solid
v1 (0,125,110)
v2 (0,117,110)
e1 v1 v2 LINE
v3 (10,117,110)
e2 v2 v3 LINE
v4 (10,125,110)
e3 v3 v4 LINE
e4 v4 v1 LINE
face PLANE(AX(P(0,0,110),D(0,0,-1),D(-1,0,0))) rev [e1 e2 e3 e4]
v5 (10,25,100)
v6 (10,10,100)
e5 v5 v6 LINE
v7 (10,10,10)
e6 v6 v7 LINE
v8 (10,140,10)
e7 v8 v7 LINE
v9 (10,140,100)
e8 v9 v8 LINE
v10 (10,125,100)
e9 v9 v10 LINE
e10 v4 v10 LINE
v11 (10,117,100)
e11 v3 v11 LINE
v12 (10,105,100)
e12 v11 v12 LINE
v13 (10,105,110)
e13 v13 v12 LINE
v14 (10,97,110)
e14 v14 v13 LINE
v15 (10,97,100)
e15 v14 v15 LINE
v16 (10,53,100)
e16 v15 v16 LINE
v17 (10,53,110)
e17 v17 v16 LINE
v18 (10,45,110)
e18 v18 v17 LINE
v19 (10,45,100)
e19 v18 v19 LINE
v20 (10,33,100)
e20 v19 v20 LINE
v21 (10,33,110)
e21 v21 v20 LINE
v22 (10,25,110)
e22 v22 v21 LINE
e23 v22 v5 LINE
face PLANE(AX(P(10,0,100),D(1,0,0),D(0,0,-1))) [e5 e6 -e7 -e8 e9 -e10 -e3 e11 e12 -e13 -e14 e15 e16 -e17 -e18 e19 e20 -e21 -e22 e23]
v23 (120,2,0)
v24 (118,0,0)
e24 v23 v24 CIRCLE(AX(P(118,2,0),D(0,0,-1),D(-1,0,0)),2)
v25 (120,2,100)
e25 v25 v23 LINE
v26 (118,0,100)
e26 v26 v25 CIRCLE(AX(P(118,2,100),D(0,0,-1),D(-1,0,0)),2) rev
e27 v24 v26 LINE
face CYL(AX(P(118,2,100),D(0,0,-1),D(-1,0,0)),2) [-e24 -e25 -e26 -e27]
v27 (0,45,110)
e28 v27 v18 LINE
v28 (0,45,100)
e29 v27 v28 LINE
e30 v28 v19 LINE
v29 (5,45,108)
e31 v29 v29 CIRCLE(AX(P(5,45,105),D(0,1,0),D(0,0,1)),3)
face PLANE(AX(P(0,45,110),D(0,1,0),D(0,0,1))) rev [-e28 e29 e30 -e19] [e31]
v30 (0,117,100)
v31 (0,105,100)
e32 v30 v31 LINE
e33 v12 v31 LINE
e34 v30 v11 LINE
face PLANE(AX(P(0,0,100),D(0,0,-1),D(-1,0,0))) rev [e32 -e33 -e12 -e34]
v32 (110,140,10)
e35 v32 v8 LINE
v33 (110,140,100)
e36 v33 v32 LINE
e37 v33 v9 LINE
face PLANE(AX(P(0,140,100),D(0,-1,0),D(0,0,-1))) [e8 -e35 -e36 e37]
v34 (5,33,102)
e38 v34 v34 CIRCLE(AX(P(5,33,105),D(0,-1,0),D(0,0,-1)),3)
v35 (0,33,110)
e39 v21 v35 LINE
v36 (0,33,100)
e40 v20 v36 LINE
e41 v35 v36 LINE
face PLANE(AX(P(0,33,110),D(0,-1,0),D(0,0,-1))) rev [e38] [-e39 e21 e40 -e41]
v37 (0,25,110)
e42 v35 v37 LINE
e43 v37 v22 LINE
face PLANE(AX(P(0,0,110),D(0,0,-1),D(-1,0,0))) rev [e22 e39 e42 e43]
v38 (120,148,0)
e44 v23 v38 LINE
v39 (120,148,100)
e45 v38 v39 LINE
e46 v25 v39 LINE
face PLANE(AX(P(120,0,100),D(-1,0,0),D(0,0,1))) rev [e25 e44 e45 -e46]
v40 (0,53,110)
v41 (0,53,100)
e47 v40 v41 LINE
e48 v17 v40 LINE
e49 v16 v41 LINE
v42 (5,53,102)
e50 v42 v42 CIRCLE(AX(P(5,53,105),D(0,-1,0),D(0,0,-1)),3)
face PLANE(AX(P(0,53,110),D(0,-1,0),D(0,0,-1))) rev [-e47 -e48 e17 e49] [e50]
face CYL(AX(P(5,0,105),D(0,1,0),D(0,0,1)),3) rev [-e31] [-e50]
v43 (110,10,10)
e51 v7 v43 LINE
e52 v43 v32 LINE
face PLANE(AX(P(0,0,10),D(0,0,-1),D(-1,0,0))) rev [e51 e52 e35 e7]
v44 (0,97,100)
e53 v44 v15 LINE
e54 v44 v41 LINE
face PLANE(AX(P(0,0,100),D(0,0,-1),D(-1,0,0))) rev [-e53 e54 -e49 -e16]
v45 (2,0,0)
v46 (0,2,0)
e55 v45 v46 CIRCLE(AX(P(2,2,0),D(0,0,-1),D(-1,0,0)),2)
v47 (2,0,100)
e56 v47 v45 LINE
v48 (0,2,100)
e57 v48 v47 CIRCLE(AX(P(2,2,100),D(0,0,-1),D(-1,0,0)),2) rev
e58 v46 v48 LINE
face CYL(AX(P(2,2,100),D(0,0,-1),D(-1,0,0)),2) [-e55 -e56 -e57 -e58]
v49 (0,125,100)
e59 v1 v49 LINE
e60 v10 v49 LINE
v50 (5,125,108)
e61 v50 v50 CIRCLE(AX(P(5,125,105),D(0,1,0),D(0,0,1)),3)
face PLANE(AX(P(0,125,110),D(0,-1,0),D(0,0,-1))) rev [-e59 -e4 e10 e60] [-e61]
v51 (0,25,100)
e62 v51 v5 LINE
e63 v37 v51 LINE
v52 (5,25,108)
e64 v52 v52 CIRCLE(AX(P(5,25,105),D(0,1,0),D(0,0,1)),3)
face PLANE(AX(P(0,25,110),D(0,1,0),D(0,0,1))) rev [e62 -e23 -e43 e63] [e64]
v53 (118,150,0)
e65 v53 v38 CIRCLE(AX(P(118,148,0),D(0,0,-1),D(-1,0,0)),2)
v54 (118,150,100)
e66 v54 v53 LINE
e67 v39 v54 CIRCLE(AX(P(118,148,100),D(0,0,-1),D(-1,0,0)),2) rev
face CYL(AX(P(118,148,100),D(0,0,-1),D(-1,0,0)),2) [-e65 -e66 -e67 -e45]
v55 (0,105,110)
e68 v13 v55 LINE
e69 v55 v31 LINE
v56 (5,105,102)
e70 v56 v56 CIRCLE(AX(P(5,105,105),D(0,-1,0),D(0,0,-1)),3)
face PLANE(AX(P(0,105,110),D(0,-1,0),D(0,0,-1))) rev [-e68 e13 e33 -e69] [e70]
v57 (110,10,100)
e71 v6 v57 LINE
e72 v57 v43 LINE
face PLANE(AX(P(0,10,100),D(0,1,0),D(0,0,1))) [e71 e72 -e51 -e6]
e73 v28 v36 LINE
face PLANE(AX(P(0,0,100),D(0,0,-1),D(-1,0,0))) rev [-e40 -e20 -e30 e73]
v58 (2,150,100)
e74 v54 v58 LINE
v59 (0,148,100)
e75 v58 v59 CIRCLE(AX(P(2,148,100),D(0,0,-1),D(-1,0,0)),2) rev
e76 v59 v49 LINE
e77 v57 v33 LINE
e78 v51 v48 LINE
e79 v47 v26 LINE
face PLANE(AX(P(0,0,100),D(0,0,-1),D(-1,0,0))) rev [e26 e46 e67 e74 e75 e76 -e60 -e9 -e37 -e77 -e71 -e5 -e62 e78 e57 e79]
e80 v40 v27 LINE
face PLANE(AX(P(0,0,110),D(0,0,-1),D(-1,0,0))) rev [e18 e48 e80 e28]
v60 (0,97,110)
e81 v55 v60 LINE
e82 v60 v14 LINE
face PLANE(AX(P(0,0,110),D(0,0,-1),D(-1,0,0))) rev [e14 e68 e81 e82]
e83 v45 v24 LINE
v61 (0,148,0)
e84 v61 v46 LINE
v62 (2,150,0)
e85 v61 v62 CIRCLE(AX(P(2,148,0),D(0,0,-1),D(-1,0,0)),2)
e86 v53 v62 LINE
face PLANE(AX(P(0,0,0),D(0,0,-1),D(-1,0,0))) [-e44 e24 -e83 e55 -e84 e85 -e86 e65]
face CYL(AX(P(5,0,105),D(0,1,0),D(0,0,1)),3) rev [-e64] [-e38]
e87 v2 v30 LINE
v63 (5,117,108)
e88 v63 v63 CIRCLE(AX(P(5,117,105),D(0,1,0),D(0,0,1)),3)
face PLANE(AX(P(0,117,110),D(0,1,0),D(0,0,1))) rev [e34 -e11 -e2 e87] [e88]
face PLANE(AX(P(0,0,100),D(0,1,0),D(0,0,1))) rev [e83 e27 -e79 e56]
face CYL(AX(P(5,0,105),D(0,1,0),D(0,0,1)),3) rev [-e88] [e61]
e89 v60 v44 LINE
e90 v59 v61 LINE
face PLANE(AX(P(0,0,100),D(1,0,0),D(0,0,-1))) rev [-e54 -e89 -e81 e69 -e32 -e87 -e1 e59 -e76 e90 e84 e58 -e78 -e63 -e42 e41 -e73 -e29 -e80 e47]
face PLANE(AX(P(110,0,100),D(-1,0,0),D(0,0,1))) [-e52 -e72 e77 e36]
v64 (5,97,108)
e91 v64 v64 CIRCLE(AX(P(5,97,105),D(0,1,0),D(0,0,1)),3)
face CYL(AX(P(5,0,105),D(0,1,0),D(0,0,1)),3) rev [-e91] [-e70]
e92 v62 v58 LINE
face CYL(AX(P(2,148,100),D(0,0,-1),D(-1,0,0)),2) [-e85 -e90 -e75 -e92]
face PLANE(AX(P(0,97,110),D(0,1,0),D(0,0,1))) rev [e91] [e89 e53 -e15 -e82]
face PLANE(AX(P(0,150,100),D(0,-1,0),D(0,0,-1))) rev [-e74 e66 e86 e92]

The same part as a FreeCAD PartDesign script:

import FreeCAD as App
import Part
import Sketcher

V = App.Vector
Q = App.Units.Quantity


def edges_at(feature, points):
    """Names of the edges that pass closest to the given points."""
    edges = feature.Shape.Edges
    near = lambda p: min(range(len(edges)), key=lambda i: edges[i].distToShape(Part.Vertex(*p))[0])
    return sorted({f"Edge{near(p) + 1}" for p in points})


def faces_at(feature, points):
    """Names of the faces that lie closest to the given points."""
    faces = feature.Shape.Faces
    near = lambda p: min(range(len(faces)), key=lambda i: faces[i].distToShape(Part.Vertex(*p))[0])
    return sorted({f"Face{near(p) + 1}" for p in points})

doc = App.newDocument("Part")
body = doc.addObject("PartDesign::Body", "Body")

sketch1 = body.newObject("Sketcher::SketchObject", "Sketch")
sketch1.AttachmentSupport = (doc.getObject("XY_Plane"), [""])
sketch1.MapMode = "FlatFace"
sketch1.addGeometry([
    Part.LineSegment(V(0, 150, 0), V(0, 0, 0)),
    Part.LineSegment(V(0, 0, 0), V(120, 0, 0)),
    Part.LineSegment(V(120, 0, 0), V(120, 150, 0)),
    Part.LineSegment(V(120, 150, 0), V(0, 150, 0)),
], False)
sketch1.addConstraint([
    Sketcher.Constraint("Coincident", 0, 2, 1, 1),
    Sketcher.Constraint("Coincident", 1, 2, 2, 1),
    Sketcher.Constraint("Coincident", 2, 2, 3, 1),
    Sketcher.Constraint("Coincident", 3, 2, 0, 1),
    Sketcher.Constraint("Vertical", 0),
    Sketcher.Constraint("Horizontal", 1),
    Sketcher.Constraint("Vertical", 2),
    Sketcher.Constraint("Horizontal", 3),
    Sketcher.Constraint("Coincident", 0, 2, -1, 1),
    Sketcher.Constraint("DistanceX", 1, 1, 1, 2, Q("120 mm")),
    Sketcher.Constraint("DistanceY", 0, 2, 0, 1, Q("150 mm")),
])
pad1 = body.newObject("PartDesign::Pad", "Pad")
pad1.Profile = sketch1
pad1.Length = 100
doc.recompute()

thickness = body.newObject("PartDesign::Thickness", "Thickness")
thickness.Base = (pad1, faces_at(pad1, [(60, 75, 100)]))
thickness.Value = 10
thickness.Reversed = True
thickness.Join = "Intersection"

sketch2 = body.newObject("Sketcher::SketchObject", "Sketch001")
sketch2.AttachmentSupport = (doc.getObject("XY_Plane"), [""])
sketch2.MapMode = "FlatFace"
sketch2.AttachmentOffset = App.Placement(V(0, 0, 100), App.Rotation())
sketch2.addGeometry([
    Part.LineSegment(V(0, 105, 0), V(0, 97, 0)),
    Part.LineSegment(V(0, 97, 0), V(10, 97, 0)),
    Part.LineSegment(V(10, 97, 0), V(10, 105, 0)),
    Part.LineSegment(V(10, 105, 0), V(0, 105, 0)),
    Part.LineSegment(V(0, 125, 0), V(0, 117, 0)),
    Part.LineSegment(V(0, 117, 0), V(10, 117, 0)),
    Part.LineSegment(V(10, 117, 0), V(10, 125, 0)),
    Part.LineSegment(V(10, 125, 0), V(0, 125, 0)),
    Part.LineSegment(V(0, 33, 0), V(0, 25, 0)),
    Part.LineSegment(V(0, 25, 0), V(10, 25, 0)),
    Part.LineSegment(V(10, 25, 0), V(10, 33, 0)),
    Part.LineSegment(V(10, 33, 0), V(0, 33, 0)),
    Part.LineSegment(V(0, 53, 0), V(0, 45, 0)),
    Part.LineSegment(V(0, 45, 0), V(10, 45, 0)),
    Part.LineSegment(V(10, 45, 0), V(10, 53, 0)),
    Part.LineSegment(V(10, 53, 0), V(0, 53, 0)),
], False)
sketch2.addConstraint([
    Sketcher.Constraint("Coincident", 0, 2, 1, 1),
    Sketcher.Constraint("Coincident", 1, 2, 2, 1),
    Sketcher.Constraint("Coincident", 2, 2, 3, 1),
    Sketcher.Constraint("Coincident", 3, 2, 0, 1),
    Sketcher.Constraint("Coincident", 4, 2, 5, 1),
    Sketcher.Constraint("Coincident", 5, 2, 6, 1),
    Sketcher.Constraint("Coincident", 6, 2, 7, 1),
    Sketcher.Constraint("Coincident", 7, 2, 4, 1),
    Sketcher.Constraint("Coincident", 8, 2, 9, 1),
    Sketcher.Constraint("Coincident", 9, 2, 10, 1),
    Sketcher.Constraint("Coincident", 10, 2, 11, 1),
    Sketcher.Constraint("Coincident", 11, 2, 8, 1),
    Sketcher.Constraint("Coincident", 12, 2, 13, 1),
    Sketcher.Constraint("Coincident", 13, 2, 14, 1),
    Sketcher.Constraint("Coincident", 14, 2, 15, 1),
    Sketcher.Constraint("Coincident", 15, 2, 12, 1),
    Sketcher.Constraint("Vertical", 0),
    Sketcher.Constraint("Horizontal", 1),
    Sketcher.Constraint("Vertical", 2),
    Sketcher.Constraint("Horizontal", 3),
    Sketcher.Constraint("Vertical", 4),
    Sketcher.Constraint("Horizontal", 5),
    Sketcher.Constraint("Vertical", 6),
    Sketcher.Constraint("Horizontal", 7),
    Sketcher.Constraint("Vertical", 8),
    Sketcher.Constraint("Horizontal", 9),
    Sketcher.Constraint("Vertical", 10),
    Sketcher.Constraint("Horizontal", 11),
    Sketcher.Constraint("Vertical", 12),
    Sketcher.Constraint("Horizontal", 13),
    Sketcher.Constraint("Vertical", 14),
    Sketcher.Constraint("Horizontal", 15),
    Sketcher.Constraint("PointOnObject", 0, 2, -2),
    Sketcher.Constraint("PointOnObject", 4, 2, -2),
    Sketcher.Constraint("PointOnObject", 8, 2, -2),
    Sketcher.Constraint("PointOnObject", 12, 2, -2),
    Sketcher.Constraint("Vertical", 2, 2, 5, 2),
    Sketcher.Constraint("Vertical", 6, 2, 9, 2),
    Sketcher.Constraint("Vertical", 10, 2, 13, 2),
    Sketcher.Constraint("Equal", 2, 4),
    Sketcher.Constraint("Equal", 6, 8),
    Sketcher.Constraint("Equal", 10, 12),
    Sketcher.Constraint("DistanceX", 1, 1, 1, 2, Q("10 mm")),
    Sketcher.Constraint("DistanceY", 0, 2, 0, 1, Q("8 mm")),
    Sketcher.Constraint("DistanceY", -1, 1, 0, 2, Q("97 mm")),
    Sketcher.Constraint("DistanceY", -1, 1, 4, 2, Q("117 mm")),
    Sketcher.Constraint("DistanceY", -1, 1, 8, 2, Q("25 mm")),
    Sketcher.Constraint("DistanceY", -1, 1, 12, 2, Q("45 mm")),
])
pad2 = body.newObject("PartDesign::Pad", "Pad001")
pad2.Profile = sketch2
pad2.Length = 10

sketch3 = body.newObject("Sketcher::SketchObject", "Sketch002")
sketch3.AttachmentSupport = (doc.getObject("XZ_Plane"), [""])
sketch3.MapMode = "FlatFace"
sketch3.AttachmentOffset = App.Placement(V(0, 0, -125), App.Rotation())
sketch3.addGeometry(Part.Circle(V(5, 105, 0), V(0, 0, 1), 3), False)
sketch3.addConstraint([
    Sketcher.Constraint("Diameter", 0, Q("6 mm")),
    Sketcher.Constraint("DistanceX", -1, 1, 0, 3, Q("5 mm")),
    Sketcher.Constraint("DistanceY", -1, 1, 0, 3, Q("105 mm")),
])
pocket1 = body.newObject("PartDesign::Pocket", "Pocket")
pocket1.Profile = sketch3
pocket1.Type = "ThroughAll"
pocket1.Reversed = True
doc.recompute()

fillet = body.newObject("PartDesign::Fillet", "Fillet")
fillet.Base = (pocket1, edges_at(pocket1, [
    (0, 150, 50),
    (120, 150, 50),
    (120, 0, 50),
    (0, 0, 50),
]))
fillet.Radius = 2

doc.recompute()
